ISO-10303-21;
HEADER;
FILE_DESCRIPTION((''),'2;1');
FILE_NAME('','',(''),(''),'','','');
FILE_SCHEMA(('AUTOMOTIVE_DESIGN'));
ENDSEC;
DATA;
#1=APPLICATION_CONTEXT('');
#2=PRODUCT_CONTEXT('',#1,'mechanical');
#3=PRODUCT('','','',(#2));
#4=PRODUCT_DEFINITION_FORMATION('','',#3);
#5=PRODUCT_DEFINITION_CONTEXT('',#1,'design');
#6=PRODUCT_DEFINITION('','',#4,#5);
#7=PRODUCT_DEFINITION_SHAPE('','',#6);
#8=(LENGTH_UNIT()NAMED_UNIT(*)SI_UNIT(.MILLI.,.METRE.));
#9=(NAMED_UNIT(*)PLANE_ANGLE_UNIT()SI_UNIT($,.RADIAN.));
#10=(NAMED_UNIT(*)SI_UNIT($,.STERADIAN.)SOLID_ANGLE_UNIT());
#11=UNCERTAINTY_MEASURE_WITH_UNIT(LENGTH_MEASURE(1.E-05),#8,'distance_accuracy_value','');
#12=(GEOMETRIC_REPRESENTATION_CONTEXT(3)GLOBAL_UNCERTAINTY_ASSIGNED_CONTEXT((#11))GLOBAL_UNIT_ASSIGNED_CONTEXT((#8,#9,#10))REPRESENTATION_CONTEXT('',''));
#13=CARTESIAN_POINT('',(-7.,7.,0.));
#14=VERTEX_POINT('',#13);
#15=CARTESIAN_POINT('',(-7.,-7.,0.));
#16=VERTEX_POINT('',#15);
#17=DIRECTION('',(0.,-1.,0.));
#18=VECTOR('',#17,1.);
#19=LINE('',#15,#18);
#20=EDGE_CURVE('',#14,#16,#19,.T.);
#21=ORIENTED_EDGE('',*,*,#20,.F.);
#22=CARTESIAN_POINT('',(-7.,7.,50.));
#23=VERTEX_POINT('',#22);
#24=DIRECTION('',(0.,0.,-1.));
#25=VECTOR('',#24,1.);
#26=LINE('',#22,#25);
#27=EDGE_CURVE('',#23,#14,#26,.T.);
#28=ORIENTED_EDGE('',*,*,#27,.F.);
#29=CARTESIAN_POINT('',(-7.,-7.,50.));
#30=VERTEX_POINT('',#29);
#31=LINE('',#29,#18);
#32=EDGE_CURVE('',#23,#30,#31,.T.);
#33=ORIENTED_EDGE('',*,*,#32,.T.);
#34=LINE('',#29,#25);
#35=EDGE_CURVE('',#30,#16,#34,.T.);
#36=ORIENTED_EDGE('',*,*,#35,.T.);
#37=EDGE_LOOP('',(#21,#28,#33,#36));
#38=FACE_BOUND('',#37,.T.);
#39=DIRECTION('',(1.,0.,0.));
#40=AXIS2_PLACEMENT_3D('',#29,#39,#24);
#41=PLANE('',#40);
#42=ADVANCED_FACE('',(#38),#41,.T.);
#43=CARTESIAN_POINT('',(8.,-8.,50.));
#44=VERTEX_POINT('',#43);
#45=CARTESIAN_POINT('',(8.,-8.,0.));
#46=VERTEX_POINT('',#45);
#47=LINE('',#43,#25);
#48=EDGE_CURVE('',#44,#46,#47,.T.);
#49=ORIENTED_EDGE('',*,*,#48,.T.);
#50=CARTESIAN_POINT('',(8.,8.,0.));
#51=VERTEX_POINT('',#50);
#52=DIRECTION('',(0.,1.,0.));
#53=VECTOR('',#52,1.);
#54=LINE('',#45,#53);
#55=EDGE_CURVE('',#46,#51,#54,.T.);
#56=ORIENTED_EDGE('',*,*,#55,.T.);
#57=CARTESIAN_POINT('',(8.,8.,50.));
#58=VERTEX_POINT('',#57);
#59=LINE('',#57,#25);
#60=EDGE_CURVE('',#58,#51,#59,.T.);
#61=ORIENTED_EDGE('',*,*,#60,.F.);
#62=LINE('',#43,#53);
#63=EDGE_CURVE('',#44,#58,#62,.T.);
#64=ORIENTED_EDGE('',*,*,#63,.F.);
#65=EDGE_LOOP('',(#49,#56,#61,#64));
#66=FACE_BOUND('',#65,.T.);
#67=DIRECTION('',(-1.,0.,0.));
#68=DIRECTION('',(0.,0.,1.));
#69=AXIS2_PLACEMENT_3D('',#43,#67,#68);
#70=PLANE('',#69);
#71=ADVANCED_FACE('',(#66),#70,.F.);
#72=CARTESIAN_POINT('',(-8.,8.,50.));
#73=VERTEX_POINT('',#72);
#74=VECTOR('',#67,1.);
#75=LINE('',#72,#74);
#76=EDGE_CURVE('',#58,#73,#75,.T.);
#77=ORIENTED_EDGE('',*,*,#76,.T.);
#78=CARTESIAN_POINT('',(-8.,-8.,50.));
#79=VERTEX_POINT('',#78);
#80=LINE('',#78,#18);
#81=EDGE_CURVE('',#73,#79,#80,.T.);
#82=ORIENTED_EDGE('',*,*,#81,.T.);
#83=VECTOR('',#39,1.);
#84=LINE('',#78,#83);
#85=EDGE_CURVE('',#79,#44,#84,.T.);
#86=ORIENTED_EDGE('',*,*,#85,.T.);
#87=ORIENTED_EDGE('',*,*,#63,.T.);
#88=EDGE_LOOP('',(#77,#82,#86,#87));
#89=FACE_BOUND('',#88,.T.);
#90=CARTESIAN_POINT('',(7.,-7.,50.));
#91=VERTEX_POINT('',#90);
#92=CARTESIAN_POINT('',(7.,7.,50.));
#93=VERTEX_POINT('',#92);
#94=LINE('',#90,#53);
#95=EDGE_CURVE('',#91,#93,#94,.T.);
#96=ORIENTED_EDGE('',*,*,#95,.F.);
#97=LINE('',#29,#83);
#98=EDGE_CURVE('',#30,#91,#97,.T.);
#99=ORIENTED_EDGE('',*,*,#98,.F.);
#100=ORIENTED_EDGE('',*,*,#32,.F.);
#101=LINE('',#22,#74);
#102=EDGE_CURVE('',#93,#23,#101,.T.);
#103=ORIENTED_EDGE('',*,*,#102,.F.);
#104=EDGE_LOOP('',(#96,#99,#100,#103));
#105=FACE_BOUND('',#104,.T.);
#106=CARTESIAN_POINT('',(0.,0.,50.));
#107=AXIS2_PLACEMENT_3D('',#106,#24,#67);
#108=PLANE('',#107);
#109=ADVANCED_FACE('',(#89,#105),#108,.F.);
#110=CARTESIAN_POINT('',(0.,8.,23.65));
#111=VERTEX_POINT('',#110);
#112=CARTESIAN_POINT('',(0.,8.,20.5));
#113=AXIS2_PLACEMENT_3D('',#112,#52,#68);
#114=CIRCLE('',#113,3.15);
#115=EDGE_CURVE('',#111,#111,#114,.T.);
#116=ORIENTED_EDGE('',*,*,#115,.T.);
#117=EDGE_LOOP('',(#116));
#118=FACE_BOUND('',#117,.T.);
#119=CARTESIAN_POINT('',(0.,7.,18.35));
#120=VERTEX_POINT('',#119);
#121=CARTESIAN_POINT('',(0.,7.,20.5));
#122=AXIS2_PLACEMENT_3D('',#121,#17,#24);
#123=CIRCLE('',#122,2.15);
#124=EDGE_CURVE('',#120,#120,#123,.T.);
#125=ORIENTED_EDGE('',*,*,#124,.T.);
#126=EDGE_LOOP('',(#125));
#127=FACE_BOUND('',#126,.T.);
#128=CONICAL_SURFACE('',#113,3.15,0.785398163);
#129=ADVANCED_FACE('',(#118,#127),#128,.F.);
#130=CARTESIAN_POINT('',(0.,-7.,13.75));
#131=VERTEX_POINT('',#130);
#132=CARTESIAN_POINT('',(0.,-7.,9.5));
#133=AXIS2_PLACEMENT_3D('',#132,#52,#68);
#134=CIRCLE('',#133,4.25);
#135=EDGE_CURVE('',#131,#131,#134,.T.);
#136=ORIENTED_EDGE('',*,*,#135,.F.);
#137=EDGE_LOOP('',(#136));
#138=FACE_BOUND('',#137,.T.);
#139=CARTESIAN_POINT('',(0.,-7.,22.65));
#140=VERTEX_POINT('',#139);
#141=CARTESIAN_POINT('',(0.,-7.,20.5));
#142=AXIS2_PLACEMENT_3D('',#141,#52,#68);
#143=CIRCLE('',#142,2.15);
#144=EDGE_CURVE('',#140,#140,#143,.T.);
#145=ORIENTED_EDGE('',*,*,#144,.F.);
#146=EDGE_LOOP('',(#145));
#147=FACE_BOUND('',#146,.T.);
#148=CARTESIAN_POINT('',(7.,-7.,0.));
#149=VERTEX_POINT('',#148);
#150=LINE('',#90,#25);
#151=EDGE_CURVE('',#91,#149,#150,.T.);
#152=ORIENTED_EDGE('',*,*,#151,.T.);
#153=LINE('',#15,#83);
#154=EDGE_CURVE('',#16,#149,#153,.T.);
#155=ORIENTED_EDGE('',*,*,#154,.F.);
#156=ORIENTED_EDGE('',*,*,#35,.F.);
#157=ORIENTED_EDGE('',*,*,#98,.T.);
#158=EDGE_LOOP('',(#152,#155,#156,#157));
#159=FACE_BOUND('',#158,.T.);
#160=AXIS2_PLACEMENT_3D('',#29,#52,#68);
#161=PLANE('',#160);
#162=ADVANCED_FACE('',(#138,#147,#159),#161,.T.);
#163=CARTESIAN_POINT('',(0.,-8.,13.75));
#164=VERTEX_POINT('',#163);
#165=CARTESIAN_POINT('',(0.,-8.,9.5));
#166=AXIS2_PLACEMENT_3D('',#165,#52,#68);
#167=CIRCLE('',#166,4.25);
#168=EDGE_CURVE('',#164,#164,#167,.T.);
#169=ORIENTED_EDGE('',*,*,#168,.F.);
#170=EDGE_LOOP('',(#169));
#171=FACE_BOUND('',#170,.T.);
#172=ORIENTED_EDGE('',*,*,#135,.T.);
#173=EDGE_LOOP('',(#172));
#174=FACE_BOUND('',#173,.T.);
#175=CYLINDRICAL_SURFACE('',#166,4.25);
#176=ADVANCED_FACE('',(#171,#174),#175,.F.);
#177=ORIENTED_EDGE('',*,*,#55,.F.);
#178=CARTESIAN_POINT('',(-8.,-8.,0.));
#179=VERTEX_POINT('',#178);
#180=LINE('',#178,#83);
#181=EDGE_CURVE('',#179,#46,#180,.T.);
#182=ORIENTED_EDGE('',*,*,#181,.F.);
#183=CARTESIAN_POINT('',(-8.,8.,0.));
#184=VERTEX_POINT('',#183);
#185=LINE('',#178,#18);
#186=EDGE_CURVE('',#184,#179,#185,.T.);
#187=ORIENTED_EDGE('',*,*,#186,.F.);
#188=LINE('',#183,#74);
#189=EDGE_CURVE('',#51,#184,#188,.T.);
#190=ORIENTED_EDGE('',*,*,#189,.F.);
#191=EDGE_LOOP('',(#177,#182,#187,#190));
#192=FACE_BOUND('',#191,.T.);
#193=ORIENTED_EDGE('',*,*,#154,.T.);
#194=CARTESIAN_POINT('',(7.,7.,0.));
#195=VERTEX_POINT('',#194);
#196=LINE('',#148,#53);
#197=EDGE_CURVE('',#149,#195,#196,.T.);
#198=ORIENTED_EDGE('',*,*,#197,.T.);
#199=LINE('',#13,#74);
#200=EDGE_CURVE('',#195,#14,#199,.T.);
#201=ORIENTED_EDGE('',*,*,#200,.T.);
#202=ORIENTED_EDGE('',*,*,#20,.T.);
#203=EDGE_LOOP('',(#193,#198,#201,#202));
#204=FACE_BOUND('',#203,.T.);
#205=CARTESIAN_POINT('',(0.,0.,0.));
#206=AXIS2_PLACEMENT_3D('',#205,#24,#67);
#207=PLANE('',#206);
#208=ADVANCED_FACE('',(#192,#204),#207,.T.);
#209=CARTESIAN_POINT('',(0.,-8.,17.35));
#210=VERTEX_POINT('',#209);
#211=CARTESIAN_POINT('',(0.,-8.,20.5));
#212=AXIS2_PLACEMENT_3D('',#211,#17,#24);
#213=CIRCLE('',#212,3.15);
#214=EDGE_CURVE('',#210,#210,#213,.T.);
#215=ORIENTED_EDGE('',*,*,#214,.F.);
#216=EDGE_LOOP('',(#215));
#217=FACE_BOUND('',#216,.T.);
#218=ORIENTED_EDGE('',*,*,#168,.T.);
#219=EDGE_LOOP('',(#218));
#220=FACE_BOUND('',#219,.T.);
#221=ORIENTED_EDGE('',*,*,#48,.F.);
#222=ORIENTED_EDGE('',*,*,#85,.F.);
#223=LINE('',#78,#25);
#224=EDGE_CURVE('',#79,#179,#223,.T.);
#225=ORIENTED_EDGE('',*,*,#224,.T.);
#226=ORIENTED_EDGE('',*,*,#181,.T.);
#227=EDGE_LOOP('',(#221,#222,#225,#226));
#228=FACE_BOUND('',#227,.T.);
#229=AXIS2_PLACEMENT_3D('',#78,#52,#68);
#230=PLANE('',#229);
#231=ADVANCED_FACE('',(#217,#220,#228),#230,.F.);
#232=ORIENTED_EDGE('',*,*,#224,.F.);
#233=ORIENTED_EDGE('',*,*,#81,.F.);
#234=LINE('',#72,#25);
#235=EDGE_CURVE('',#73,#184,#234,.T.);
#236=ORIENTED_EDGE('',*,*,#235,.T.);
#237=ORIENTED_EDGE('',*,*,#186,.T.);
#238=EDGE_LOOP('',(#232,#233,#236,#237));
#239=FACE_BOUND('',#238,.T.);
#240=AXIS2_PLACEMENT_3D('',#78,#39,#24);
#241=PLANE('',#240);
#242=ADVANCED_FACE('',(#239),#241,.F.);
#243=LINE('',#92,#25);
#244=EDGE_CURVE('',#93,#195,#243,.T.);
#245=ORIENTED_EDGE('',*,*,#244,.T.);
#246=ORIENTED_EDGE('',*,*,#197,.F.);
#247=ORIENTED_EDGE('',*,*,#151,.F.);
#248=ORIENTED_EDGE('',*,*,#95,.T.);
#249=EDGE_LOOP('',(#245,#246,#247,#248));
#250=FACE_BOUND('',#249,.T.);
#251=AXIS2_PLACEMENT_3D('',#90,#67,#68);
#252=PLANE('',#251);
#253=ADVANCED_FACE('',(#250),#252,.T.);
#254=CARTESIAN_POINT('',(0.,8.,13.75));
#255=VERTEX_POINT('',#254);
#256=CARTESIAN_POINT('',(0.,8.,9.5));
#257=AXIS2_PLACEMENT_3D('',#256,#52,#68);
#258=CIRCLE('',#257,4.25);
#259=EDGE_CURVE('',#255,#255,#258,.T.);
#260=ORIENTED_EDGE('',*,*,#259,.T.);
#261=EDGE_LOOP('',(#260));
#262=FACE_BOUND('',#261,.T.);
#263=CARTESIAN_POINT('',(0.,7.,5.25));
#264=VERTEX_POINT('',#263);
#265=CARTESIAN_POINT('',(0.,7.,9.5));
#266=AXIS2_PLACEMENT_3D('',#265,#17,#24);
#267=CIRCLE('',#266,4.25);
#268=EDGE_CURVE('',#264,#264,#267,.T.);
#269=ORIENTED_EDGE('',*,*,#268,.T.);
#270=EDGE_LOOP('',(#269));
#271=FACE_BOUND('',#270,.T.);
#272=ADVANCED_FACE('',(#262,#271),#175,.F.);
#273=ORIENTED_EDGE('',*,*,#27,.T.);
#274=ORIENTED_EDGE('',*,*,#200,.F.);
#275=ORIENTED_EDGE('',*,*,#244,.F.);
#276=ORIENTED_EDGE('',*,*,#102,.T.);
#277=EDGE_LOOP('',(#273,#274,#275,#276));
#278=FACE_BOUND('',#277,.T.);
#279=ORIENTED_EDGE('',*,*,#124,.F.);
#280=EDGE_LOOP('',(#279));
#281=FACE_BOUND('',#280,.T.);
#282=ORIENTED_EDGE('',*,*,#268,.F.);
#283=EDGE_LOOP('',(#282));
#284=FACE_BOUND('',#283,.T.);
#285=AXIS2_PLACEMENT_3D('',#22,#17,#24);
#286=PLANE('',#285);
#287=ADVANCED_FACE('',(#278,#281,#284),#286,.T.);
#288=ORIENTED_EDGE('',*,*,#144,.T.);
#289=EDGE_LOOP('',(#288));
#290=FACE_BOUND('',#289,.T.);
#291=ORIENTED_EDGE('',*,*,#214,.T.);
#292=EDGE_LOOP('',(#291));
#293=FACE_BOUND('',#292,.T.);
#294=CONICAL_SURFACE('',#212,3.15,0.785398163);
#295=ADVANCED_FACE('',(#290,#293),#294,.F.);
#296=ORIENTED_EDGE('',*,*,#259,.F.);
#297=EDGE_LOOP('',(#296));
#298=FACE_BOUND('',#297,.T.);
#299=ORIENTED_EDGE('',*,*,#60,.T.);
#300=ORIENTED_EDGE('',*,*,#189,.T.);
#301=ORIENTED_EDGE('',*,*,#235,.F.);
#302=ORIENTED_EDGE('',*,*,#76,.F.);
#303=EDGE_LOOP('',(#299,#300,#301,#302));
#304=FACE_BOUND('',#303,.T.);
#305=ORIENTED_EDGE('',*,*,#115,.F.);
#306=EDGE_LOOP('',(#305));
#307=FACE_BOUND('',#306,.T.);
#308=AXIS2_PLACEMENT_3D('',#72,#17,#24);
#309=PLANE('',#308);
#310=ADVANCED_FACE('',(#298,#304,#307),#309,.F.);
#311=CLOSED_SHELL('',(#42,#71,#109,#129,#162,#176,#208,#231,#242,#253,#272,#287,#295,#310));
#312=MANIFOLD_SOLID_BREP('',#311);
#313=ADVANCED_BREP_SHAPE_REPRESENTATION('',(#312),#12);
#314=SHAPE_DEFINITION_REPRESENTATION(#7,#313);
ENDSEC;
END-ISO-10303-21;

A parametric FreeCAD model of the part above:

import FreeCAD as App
import Part
import Sketcher


def add_polygon(sketch, points):
    """Adds a closed chain of lines whose ends are joined by coincident constraints."""
    first, n = sketch.GeometryCount, len(points)
    for a, b in zip(points, points[1:] + points[:1]):
        sketch.addGeometry(Part.LineSegment(App.Vector(*a, 0), App.Vector(*b, 0)), False)
    for i in range(n):
        sketch.addConstraint(Sketcher.Constraint("Coincident", first + i, 2, first + (i + 1) % n, 1))

doc = App.newDocument("Part")
body = doc.addObject("PartDesign::Body", "Body")

# Sketch on XY plane
sketch1 = body.newObject("Sketcher::SketchObject", "Sketch")
sketch1.AttachmentSupport = (doc.getObject("XY_Plane"), [""])
sketch1.MapMode = "FlatFace"
add_polygon(sketch1, [(-8, 8), (-8, -8), (8, -8), (8, 8)])  # lines 0-3
add_polygon(sketch1, [(7, -7), (-7, -7), (-7, 7), (7, 7)])  # lines 4-7
sketch1.addConstraint([
    Sketcher.Constraint("Vertical", 0),
    Sketcher.Constraint("Horizontal", 1),
    Sketcher.Constraint("Vertical", 2),
    Sketcher.Constraint("Horizontal", 3),
    Sketcher.Constraint("Horizontal", 4),
    Sketcher.Constraint("Vertical", 5),
    Sketcher.Constraint("Horizontal", 6),
    Sketcher.Constraint("Vertical", 7),
    Sketcher.Constraint("Symmetric", 0, 2, 2, 2, -1, 1),
    Sketcher.Constraint("Symmetric", 4, 2, 6, 2, -1, 1),
    Sketcher.Constraint("Equal", 3, 0),
    Sketcher.Constraint("Equal", 6, 5),
    Sketcher.Constraint("DistanceX", 1, 1, 1, 2, 16.0),
    Sketcher.Constraint("DistanceX", 4, 2, 4, 1, 14.0),
])
pad1 = body.newObject("PartDesign::Pad", "Pad")
pad1.Profile = sketch1
pad1.Length = 50

# Sketch on XZ plane
sketch2 = body.newObject("Sketcher::SketchObject", "Sketch001")
sketch2.AttachmentSupport = (doc.getObject("XZ_Plane"), [""])
sketch2.MapMode = "FlatFace"
sketch2.AttachmentOffset = App.Placement(App.Vector(0, 0, -8), App.Rotation())
sketch2.addGeometry(Part.Circle(App.Vector(0, 9.5, 0), App.Vector(0, 0, 1), 4.2), False)
sketch2.addConstraint([
    Sketcher.Constraint("PointOnObject", 0, 3, -2),
    Sketcher.Constraint("Diameter", 0, 8.5),
    Sketcher.Constraint("DistanceY", -1, 1, 0, 3, 9.5),
])
pocket1 = body.newObject("PartDesign::Pocket", "Pocket")
pocket1.Profile = sketch2
pocket1.Type = "ThroughAll"
pocket1.Reversed = True

# Sketch on XZ plane
sketch3 = body.newObject("Sketcher::SketchObject", "Sketch002")
sketch3.AttachmentSupport = (doc.getObject("XZ_Plane"), [""])
sketch3.MapMode = "FlatFace"
sketch3.AttachmentOffset = App.Placement(App.Vector(0, 0, -8), App.Rotation())
sketch3.addGeometry(Part.Circle(App.Vector(0, 20.5, 0), App.Vector(0, 0, 1), 1.7), False)
sketch3.addConstraint([
    Sketcher.Constraint("PointOnObject", 0, 3, -2),
    Sketcher.Constraint("Diameter", 0, 3.4),
    Sketcher.Constraint("DistanceY", -1, 1, 0, 3, 20.5),
])
doc.recompute()
hole = body.newObject("PartDesign::Hole", "Hole")
hole.Profile = sketch3
hole.ThreadType = "None"
hole.Diameter = 3.4
hole.DepthType = "ThroughAll"
hole.HoleCutType = "Countersink"
hole.HoleCutDiameter = 6.3
hole.HoleCutCountersinkAngle = 90
hole.Reversed = True
doc.recompute()

mirrored = body.newObject("PartDesign::Mirrored", "Mirrored")
mirrored.Originals = [hole]
mirrored.MirrorPlane = (doc.getObject("XZ_Plane"), [""])
body.Tip = mirrored

doc.recompute()
